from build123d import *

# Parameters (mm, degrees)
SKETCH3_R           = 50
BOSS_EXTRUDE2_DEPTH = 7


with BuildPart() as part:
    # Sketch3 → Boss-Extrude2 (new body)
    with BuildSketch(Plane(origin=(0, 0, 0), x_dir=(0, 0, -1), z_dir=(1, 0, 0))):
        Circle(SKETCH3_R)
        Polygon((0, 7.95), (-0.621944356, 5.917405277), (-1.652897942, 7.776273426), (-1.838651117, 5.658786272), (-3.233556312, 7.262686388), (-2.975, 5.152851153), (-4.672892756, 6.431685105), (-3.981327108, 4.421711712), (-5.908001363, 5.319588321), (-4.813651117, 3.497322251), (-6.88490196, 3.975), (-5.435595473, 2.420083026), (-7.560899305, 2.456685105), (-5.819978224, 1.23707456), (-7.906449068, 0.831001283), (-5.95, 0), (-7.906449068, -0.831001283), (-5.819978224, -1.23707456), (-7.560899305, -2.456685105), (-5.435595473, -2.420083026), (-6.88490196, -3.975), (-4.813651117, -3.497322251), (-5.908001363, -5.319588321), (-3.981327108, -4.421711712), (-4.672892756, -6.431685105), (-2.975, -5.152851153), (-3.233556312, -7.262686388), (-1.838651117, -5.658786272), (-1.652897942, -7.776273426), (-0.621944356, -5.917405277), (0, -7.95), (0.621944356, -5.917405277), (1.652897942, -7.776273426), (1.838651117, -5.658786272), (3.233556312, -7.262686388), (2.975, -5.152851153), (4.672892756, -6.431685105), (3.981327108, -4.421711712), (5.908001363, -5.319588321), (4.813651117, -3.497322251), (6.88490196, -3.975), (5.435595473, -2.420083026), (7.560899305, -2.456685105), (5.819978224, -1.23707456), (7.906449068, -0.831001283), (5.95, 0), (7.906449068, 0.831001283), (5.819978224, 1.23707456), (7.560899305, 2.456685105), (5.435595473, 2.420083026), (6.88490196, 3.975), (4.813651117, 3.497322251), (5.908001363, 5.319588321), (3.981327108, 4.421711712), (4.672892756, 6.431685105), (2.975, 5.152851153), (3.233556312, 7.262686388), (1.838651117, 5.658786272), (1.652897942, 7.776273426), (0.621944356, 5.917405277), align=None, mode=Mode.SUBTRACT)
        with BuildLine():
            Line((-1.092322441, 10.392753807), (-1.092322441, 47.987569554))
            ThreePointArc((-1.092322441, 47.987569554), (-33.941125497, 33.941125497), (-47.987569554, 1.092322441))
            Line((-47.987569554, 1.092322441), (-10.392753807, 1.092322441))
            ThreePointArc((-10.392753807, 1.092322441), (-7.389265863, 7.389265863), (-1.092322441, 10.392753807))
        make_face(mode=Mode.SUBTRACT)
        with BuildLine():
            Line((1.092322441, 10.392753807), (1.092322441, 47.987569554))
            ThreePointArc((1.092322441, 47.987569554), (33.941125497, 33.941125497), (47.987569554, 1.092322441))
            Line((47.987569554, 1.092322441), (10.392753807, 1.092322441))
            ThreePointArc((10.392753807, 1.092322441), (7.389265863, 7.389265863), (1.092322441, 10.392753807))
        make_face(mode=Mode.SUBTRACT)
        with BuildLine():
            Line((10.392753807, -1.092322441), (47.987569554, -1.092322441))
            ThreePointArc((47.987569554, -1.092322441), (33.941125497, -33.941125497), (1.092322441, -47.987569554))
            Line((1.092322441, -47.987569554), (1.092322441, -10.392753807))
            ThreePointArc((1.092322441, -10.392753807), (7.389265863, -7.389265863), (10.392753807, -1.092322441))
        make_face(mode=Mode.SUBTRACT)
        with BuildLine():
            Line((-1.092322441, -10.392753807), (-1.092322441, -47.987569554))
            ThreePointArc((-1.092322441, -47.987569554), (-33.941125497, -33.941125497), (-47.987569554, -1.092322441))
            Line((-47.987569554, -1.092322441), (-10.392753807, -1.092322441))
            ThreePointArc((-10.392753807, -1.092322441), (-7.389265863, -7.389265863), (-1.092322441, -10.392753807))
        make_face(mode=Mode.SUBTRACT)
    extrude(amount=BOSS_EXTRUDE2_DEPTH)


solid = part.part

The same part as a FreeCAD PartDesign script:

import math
import FreeCAD as App
import Part
import Sketcher
from FreeCAD import Vector


def add_polygon(sketch, points):
    """Adds a closed chain of lines whose ends are joined by coincident constraints."""
    first, n = sketch.GeometryCount, len(points)
    for a, b in zip(points, points[1:] + points[:1]):
        sketch.addGeometry(Part.LineSegment(App.Vector(*a, 0), App.Vector(*b, 0)), False)
    for i in range(n):
        sketch.addConstraint(Sketcher.Constraint("Coincident", first + i, 2, first + (i + 1) % n, 1))

doc = App.newDocument("Part")
body = doc.addObject("PartDesign::Body", "Body")

sketch1 = body.newObject("Sketcher::SketchObject", "Sketch")
sketch1.AttachmentSupport = (doc.getObject("YZ_Plane"), [""])
sketch1.MapMode = "FlatFace"
sketch1.addGeometry(Part.Circle(Vector(0, 0, 0), Vector(0, 0, 1), 50), False)
sketch1.addGeometry(Part.ArcOfCircle(Part.Circle(Vector(0, 0, 0), Vector(0, 0, 1), 10.5), math.radians(96), math.radians(174)), False)
sketch1.addGeometry(Part.LineSegment(Vector(-10.4, 1.1, 0), Vector(-48, 1.1, 0)), False)
sketch1.addGeometry(Part.ArcOfCircle(Part.Circle(Vector(0, 0, 0), Vector(0, 0, 1), 48), math.radians(91), math.radians(179)), False)
sketch1.addGeometry(Part.LineSegment(Vector(-1.1, 48, 0), Vector(-1.1, 10.4, 0)), False)
sketch1.addGeometry(Part.ArcOfCircle(Part.Circle(Vector(0, 0, 0), Vector(0, 0, 1), 10.5), math.radians(-174), math.radians(-96)), False)
sketch1.addGeometry(Part.LineSegment(Vector(-1.1, -10.4, 0), Vector(-1.1, -48, 0)), False)
sketch1.addGeometry(Part.ArcOfCircle(Part.Circle(Vector(0, 0, 0), Vector(0, 0, 1), 48), math.radians(-179), math.radians(-91)), False)
sketch1.addGeometry(Part.LineSegment(Vector(-48, -1.1, 0), Vector(-10.4, -1.1, 0)), False)
add_polygon(sketch1, [(5.9, 0.6), (8, 0), (5.9, -0.6), (7.8, -1.7), (5.7, -1.8), (7.3, -3.2), (5.2, -3), (6.4, -4.7), (4.4, -4), (5.3, -5.9), (3.5, -4.8), (4, -6.9), (2.4, -5.4), (2.5, -7.6), (1.2, -5.8), (0.8, -7.9), (0, -6), (-0.8, -7.9), (-1.2, -5.8), (-2.5, -7.6), (-2.4, -5.4), (-4, -6.9), (-3.5, -4.8), (-5.3, -5.9), (-4.4, -4), (-6.4, -4.7), (-5.2, -3), (-7.3, -3.2), (-5.7, -1.8), (-7.8, -1.7), (-5.9, -0.6), (-8, 0), (-5.9, 0.6), (-7.8, 1.7), (-5.7, 1.8), (-7.3, 3.2), (-5.2, 3), (-6.4, 4.7), (-4.4, 4), (-5.3, 5.9), (-3.5, 4.8), (-4, 6.9), (-2.4, 5.4), (-2.5, 7.6), (-1.2, 5.8), (-0.8, 7.9), (0, 6), (0.8, 7.9), (1.2, 5.8), (2.5, 7.6), (2.4, 5.4), (4, 6.9), (3.5, 4.8), (5.3, 5.9), (4.4, 4), (6.4, 4.7), (5.2, 3), (7.3, 3.2), (5.7, 1.8), (7.8, 1.7)])
sketch1.addGeometry(Part.LineSegment(Vector(48, 1.1, 0), Vector(10.4, 1.1, 0)), False)
sketch1.addGeometry(Part.ArcOfCircle(Part.Circle(Vector(0, 0, 0), Vector(0, 0, 1), 10.5), math.radians(6), math.radians(84)), False)
sketch1.addGeometry(Part.LineSegment(Vector(1.1, 10.4, 0), Vector(1.1, 48, 0)), False)
sketch1.addGeometry(Part.ArcOfCircle(Part.Circle(Vector(0, 0, 0), Vector(0, 0, 1), 48), math.radians(1), math.radians(89)), False)
sketch1.addGeometry(Part.ArcOfCircle(Part.Circle(Vector(0, 0, 0), Vector(0, 0, 1), 10.5), math.radians(-84), math.radians(-6)), False)
sketch1.addGeometry(Part.LineSegment(Vector(10.4, -1.1, 0), Vector(48, -1.1, 0)), False)
sketch1.addGeometry(Part.ArcOfCircle(Part.Circle(Vector(0, 0, 0), Vector(0, 0, 1), 48), math.radians(-89), math.radians(-1)), False)
sketch1.addGeometry(Part.LineSegment(Vector(1.1, -48, 0), Vector(1.1, -10.4, 0)), False)
sketch1.addConstraint(Sketcher.Constraint("Coincident", 1, 2, 2, 1))
sketch1.addConstraint(Sketcher.Constraint("Coincident", 2, 2, 3, 2))
sketch1.addConstraint(Sketcher.Constraint("Coincident", 3, 1, 4, 1))
sketch1.addConstraint(Sketcher.Constraint("Coincident", 4, 2, 1, 1))
sketch1.addConstraint(Sketcher.Constraint("Coincident", 5, 2, 6, 1))
sketch1.addConstraint(Sketcher.Constraint("Coincident", 6, 2, 7, 2))
sketch1.addConstraint(Sketcher.Constraint("Coincident", 7, 1, 8, 1))
sketch1.addConstraint(Sketcher.Constraint("Coincident", 8, 2, 5, 1))
sketch1.addConstraint(Sketcher.Constraint("Coincident", 69, 2, 70, 1))
sketch1.addConstraint(Sketcher.Constraint("Coincident", 70, 2, 71, 1))
sketch1.addConstraint(Sketcher.Constraint("Coincident", 71, 2, 72, 2))
sketch1.addConstraint(Sketcher.Constraint("Coincident", 72, 1, 69, 1))
sketch1.addConstraint(Sketcher.Constraint("Coincident", 73, 2, 74, 1))
sketch1.addConstraint(Sketcher.Constraint("Coincident", 74, 2, 75, 2))
sketch1.addConstraint(Sketcher.Constraint("Coincident", 75, 1, 76, 1))
sketch1.addConstraint(Sketcher.Constraint("Coincident", 76, 2, 73, 1))
sketch1.addConstraint(Sketcher.Constraint("Horizontal", 2))
sketch1.addConstraint(Sketcher.Constraint("Vertical", 4))
sketch1.addConstraint(Sketcher.Constraint("Vertical", 6))
sketch1.addConstraint(Sketcher.Constraint("Horizontal", 8))
sketch1.addConstraint(Sketcher.Constraint("Horizontal", 69))
sketch1.addConstraint(Sketcher.Constraint("Vertical", 71))
sketch1.addConstraint(Sketcher.Constraint("Horizontal", 74))
sketch1.addConstraint(Sketcher.Constraint("Vertical", 76))
sketch1.addConstraint(Sketcher.Constraint("Coincident", 0, 3, -1, 1))
sketch1.addConstraint(Sketcher.Constraint("Coincident", 1, 3, -1, 1))
sketch1.addConstraint(Sketcher.Constraint("Coincident", 3, 3, -1, 1))
sketch1.addConstraint(Sketcher.Constraint("Coincident", 5, 3, -1, 1))
sketch1.addConstraint(Sketcher.Constraint("Coincident", 7, 3, -1, 1))
sketch1.addConstraint(Sketcher.Constraint("Coincident", 70, 3, -1, 1))
sketch1.addConstraint(Sketcher.Constraint("Coincident", 72, 3, -1, 1))
sketch1.addConstraint(Sketcher.Constraint("Coincident", 73, 3, -1, 1))
sketch1.addConstraint(Sketcher.Constraint("Coincident", 75, 3, -1, 1))
sketch1.addConstraint(Sketcher.Constraint("Equal", 1, 5))
sketch1.addConstraint(Sketcher.Constraint("Equal", 3, 7))
sketch1.addConstraint(Sketcher.Constraint("Equal", 5, 70))
sketch1.addConstraint(Sketcher.Constraint("Equal", 7, 72))
sketch1.addConstraint(Sketcher.Constraint("Equal", 70, 73))
sketch1.addConstraint(Sketcher.Constraint("Equal", 72, 75))
sketch1.addConstraint(Sketcher.Constraint("Symmetric", 9, 2, 39, 2, -1, 1))
sketch1.addConstraint(Sketcher.Constraint("Symmetric", 10, 2, 40, 2, -1, 1))
sketch1.addConstraint(Sketcher.Constraint("Symmetric", 11, 2, 41, 2, -1, 1))
sketch1.addConstraint(Sketcher.Constraint("Symmetric", 12, 2, 42, 2, -1, 1))
sketch1.addConstraint(Sketcher.Constraint("Symmetric", 13, 2, 43, 2, -1, 1))
sketch1.addConstraint(Sketcher.Constraint("Symmetric", 14, 2, 44, 2, -1, 1))
sketch1.addConstraint(Sketcher.Constraint("Symmetric", 15, 2, 45, 2, -1, 1))
sketch1.addConstraint(Sketcher.Constraint("Symmetric", 16, 2, 46, 2, -1, 1))
sketch1.addConstraint(Sketcher.Constraint("Symmetric", 17, 2, 47, 2, -1, 1))
sketch1.addConstraint(Sketcher.Constraint("Symmetric", 18, 2, 48, 2, -1, 1))
sketch1.addConstraint(Sketcher.Constraint("Symmetric", 19, 2, 49, 2, -1, 1))
sketch1.addConstraint(Sketcher.Constraint("Symmetric", 20, 2, 50, 2, -1, 1))
sketch1.addConstraint(Sketcher.Constraint("Symmetric", 21, 2, 51, 2, -1, 1))
sketch1.addConstraint(Sketcher.Constraint("Symmetric", 22, 2, 52, 2, -1, 1))
sketch1.addConstraint(Sketcher.Constraint("Symmetric", 23, 2, 53, 2, -1, 1))
sketch1.addConstraint(Sketcher.Constraint("Symmetric", 24, 2, 54, 2, -1, 1))
sketch1.addConstraint(Sketcher.Constraint("Symmetric", 25, 2, 55, 2, -1, 1))
sketch1.addConstraint(Sketcher.Constraint("Symmetric", 26, 2, 56, 2, -1, 1))
sketch1.addConstraint(Sketcher.Constraint("Symmetric", 27, 2, 57, 2, -1, 1))
sketch1.addConstraint(Sketcher.Constraint("Symmetric", 28, 2, 58, 2, -1, 1))
sketch1.addConstraint(Sketcher.Constraint("Symmetric", 29, 2, 59, 2, -1, 1))
sketch1.addConstraint(Sketcher.Constraint("Symmetric", 30, 2, 60, 2, -1, 1))
sketch1.addConstraint(Sketcher.Constraint("Symmetric", 31, 2, 61, 2, -1, 1))
sketch1.addConstraint(Sketcher.Constraint("Symmetric", 32, 2, 62, 2, -1, 1))
sketch1.addConstraint(Sketcher.Constraint("Symmetric", 33, 2, 63, 2, -1, 1))
sketch1.addConstraint(Sketcher.Constraint("Symmetric", 34, 2, 64, 2, -1, 1))
sketch1.addConstraint(Sketcher.Constraint("Symmetric", 35, 2, 65, 2, -1, 1))
sketch1.addConstraint(Sketcher.Constraint("Symmetric", 36, 2, 66, 2, -1, 1))
sketch1.addConstraint(Sketcher.Constraint("Symmetric", 37, 2, 67, 2, -1, 1))
sketch1.addConstraint(Sketcher.Constraint("Symmetric", 38, 2, 68, 2, -1, 1))
sketch1.addConstraint(Sketcher.Constraint("Symmetric", 23, 2, 25, 2, -2))
sketch1.addConstraint(Sketcher.Constraint("Symmetric", 22, 2, 26, 2, -2))
sketch1.addConstraint(Sketcher.Constraint("Symmetric", 21, 2, 27, 2, -2))
sketch1.addConstraint(Sketcher.Constraint("Symmetric", 20, 2, 28, 2, -2))
sketch1.addConstraint(Sketcher.Constraint("Symmetric", 19, 2, 29, 2, -2))
sketch1.addConstraint(Sketcher.Constraint("Symmetric", 18, 2, 30, 2, -2))
sketch1.addConstraint(Sketcher.Constraint("Symmetric", 17, 2, 31, 2, -2))
sketch1.addConstraint(Sketcher.Constraint("Symmetric", 16, 2, 32, 2, -2))
sketch1.addConstraint(Sketcher.Constraint("Symmetric", 15, 2, 33, 2, -2))
sketch1.addConstraint(Sketcher.Constraint("Symmetric", 14, 2, 34, 2, -2))
sketch1.addConstraint(Sketcher.Constraint("Symmetric", 13, 2, 35, 2, -2))
sketch1.addConstraint(Sketcher.Constraint("Symmetric", 12, 2, 36, 2, -2))
sketch1.addConstraint(Sketcher.Constraint("Symmetric", 11, 2, 37, 2, -2))
sketch1.addConstraint(Sketcher.Constraint("Symmetric", 10, 2, 38, 2, -2))
sketch1.addConstraint(Sketcher.Constraint("PointOnObject", 9, 2, -1))
sketch1.addConstraint(Sketcher.Constraint("PointOnObject", 24, 2, -2))
sketch1.addConstraint(Sketcher.Constraint("Horizontal", 2, 2, 69, 2))
sketch1.addConstraint(Sketcher.Constraint("Horizontal", 4, 2, 70, 2))
sketch1.addConstraint(Sketcher.Constraint("Horizontal", 8, 2, 73, 2))
sketch1.addConstraint(Sketcher.Constraint("Horizontal", 6, 2, 75, 1))
sketch1.addConstraint(Sketcher.Constraint("Vertical", 4, 2, 5, 2))
sketch1.addConstraint(Sketcher.Constraint("Vertical", 2, 2, 7, 1))
sketch1.addConstraint(Sketcher.Constraint("Equal", 74, 4))
sketch1.addConstraint(Sketcher.Constraint("Equal", 10, 11))
sketch1.addConstraint(Sketcher.Constraint("Equal", 11, 12))
sketch1.addConstraint(Sketcher.Constraint("Equal", 12, 13))
sketch1.addConstraint(Sketcher.Constraint("Equal", 13, 14))
sketch1.addConstraint(Sketcher.Constraint("Equal", 14, 15))
sketch1.addConstraint(Sketcher.Constraint("Equal", 15, 16))
sketch1.addConstraint(Sketcher.Constraint("Equal", 16, 17))
sketch1.addConstraint(Sketcher.Constraint("Equal", 17, 18))
sketch1.addConstraint(Sketcher.Constraint("Equal", 18, 19))
sketch1.addConstraint(Sketcher.Constraint("Equal", 19, 20))
sketch1.addConstraint(Sketcher.Constraint("Equal", 20, 21))
sketch1.addConstraint(Sketcher.Constraint("Equal", 21, 22))
sketch1.addConstraint(Sketcher.Constraint("Equal", 22, 23))
sketch1.addConstraint(Sketcher.Constraint("Equal", 23, 24))
sketch1.addConstraint(Sketcher.Constraint("Diameter", 0, 100.0))
sketch1.addConstraint(Sketcher.Constraint("Radius", 3, 48.0))
sketch1.addConstraint(Sketcher.Constraint("Radius", 1, 10.45))
sketch1.addConstraint(Sketcher.Constraint("DistanceX", -1, 1, 9, 2, 7.95))
sketch1.addConstraint(Sketcher.Constraint("DistanceY", 24, 2, -1, 1, 5.95))
sketch1.addConstraint(Sketcher.Constraint("DistanceY", 14, 2, -1, 1, 2.975))
sketch1.addConstraint(Sketcher.Constraint("DistanceY", 17, 2, -1, 1, 5.908001))
sketch1.addConstraint(Sketcher.Constraint("DistanceX", -1, 1, 19, 2, 3.975))
sketch1.addConstraint(Sketcher.Constraint("DistanceX", -1, 1, 23, 2, 0.831001))
sketch1.addConstraint(Sketcher.Constraint("DistanceY", 19, 2, -1, 1, 6.884902))
sketch1.addConstraint(Sketcher.Constraint("DistanceY", 21, 2, -1, 1, 7.560899))
sketch1.addConstraint(Sketcher.Constraint("Distance", 9, 2.125619))
sketch1.addConstraint(Sketcher.Constraint("DistanceX", 2, 2, 2, 1, 37.594816))
sketch1.addConstraint(Sketcher.Constraint("DistanceY", 12, 2, -1, 1, 1.838651))
sketch1.addConstraint(Sketcher.Constraint("DistanceX", -1, 1, 14, 2, 5.152851))
sketch1.addConstraint(Sketcher.Constraint("DistanceX", -1, 1, 16, 2, 4.421712))
sketch1.addConstraint(Sketcher.Constraint("DistanceX", -1, 1, 17, 2, 5.319588))
sketch1.addConstraint(Sketcher.Constraint("DistanceY", 22, 2, -1, 1, 5.819978))
sketch1.addConstraint(Sketcher.Constraint("DistanceX", -1, 1, 10, 2, 5.917405))
sketch1.addConstraint(Sketcher.Constraint("DistanceX", -1, 1, 11, 2, 7.776273))
pad1 = body.newObject("PartDesign::Pad", "Pad")
pad1.Profile = sketch1
pad1.Length = 7

doc.recompute()
